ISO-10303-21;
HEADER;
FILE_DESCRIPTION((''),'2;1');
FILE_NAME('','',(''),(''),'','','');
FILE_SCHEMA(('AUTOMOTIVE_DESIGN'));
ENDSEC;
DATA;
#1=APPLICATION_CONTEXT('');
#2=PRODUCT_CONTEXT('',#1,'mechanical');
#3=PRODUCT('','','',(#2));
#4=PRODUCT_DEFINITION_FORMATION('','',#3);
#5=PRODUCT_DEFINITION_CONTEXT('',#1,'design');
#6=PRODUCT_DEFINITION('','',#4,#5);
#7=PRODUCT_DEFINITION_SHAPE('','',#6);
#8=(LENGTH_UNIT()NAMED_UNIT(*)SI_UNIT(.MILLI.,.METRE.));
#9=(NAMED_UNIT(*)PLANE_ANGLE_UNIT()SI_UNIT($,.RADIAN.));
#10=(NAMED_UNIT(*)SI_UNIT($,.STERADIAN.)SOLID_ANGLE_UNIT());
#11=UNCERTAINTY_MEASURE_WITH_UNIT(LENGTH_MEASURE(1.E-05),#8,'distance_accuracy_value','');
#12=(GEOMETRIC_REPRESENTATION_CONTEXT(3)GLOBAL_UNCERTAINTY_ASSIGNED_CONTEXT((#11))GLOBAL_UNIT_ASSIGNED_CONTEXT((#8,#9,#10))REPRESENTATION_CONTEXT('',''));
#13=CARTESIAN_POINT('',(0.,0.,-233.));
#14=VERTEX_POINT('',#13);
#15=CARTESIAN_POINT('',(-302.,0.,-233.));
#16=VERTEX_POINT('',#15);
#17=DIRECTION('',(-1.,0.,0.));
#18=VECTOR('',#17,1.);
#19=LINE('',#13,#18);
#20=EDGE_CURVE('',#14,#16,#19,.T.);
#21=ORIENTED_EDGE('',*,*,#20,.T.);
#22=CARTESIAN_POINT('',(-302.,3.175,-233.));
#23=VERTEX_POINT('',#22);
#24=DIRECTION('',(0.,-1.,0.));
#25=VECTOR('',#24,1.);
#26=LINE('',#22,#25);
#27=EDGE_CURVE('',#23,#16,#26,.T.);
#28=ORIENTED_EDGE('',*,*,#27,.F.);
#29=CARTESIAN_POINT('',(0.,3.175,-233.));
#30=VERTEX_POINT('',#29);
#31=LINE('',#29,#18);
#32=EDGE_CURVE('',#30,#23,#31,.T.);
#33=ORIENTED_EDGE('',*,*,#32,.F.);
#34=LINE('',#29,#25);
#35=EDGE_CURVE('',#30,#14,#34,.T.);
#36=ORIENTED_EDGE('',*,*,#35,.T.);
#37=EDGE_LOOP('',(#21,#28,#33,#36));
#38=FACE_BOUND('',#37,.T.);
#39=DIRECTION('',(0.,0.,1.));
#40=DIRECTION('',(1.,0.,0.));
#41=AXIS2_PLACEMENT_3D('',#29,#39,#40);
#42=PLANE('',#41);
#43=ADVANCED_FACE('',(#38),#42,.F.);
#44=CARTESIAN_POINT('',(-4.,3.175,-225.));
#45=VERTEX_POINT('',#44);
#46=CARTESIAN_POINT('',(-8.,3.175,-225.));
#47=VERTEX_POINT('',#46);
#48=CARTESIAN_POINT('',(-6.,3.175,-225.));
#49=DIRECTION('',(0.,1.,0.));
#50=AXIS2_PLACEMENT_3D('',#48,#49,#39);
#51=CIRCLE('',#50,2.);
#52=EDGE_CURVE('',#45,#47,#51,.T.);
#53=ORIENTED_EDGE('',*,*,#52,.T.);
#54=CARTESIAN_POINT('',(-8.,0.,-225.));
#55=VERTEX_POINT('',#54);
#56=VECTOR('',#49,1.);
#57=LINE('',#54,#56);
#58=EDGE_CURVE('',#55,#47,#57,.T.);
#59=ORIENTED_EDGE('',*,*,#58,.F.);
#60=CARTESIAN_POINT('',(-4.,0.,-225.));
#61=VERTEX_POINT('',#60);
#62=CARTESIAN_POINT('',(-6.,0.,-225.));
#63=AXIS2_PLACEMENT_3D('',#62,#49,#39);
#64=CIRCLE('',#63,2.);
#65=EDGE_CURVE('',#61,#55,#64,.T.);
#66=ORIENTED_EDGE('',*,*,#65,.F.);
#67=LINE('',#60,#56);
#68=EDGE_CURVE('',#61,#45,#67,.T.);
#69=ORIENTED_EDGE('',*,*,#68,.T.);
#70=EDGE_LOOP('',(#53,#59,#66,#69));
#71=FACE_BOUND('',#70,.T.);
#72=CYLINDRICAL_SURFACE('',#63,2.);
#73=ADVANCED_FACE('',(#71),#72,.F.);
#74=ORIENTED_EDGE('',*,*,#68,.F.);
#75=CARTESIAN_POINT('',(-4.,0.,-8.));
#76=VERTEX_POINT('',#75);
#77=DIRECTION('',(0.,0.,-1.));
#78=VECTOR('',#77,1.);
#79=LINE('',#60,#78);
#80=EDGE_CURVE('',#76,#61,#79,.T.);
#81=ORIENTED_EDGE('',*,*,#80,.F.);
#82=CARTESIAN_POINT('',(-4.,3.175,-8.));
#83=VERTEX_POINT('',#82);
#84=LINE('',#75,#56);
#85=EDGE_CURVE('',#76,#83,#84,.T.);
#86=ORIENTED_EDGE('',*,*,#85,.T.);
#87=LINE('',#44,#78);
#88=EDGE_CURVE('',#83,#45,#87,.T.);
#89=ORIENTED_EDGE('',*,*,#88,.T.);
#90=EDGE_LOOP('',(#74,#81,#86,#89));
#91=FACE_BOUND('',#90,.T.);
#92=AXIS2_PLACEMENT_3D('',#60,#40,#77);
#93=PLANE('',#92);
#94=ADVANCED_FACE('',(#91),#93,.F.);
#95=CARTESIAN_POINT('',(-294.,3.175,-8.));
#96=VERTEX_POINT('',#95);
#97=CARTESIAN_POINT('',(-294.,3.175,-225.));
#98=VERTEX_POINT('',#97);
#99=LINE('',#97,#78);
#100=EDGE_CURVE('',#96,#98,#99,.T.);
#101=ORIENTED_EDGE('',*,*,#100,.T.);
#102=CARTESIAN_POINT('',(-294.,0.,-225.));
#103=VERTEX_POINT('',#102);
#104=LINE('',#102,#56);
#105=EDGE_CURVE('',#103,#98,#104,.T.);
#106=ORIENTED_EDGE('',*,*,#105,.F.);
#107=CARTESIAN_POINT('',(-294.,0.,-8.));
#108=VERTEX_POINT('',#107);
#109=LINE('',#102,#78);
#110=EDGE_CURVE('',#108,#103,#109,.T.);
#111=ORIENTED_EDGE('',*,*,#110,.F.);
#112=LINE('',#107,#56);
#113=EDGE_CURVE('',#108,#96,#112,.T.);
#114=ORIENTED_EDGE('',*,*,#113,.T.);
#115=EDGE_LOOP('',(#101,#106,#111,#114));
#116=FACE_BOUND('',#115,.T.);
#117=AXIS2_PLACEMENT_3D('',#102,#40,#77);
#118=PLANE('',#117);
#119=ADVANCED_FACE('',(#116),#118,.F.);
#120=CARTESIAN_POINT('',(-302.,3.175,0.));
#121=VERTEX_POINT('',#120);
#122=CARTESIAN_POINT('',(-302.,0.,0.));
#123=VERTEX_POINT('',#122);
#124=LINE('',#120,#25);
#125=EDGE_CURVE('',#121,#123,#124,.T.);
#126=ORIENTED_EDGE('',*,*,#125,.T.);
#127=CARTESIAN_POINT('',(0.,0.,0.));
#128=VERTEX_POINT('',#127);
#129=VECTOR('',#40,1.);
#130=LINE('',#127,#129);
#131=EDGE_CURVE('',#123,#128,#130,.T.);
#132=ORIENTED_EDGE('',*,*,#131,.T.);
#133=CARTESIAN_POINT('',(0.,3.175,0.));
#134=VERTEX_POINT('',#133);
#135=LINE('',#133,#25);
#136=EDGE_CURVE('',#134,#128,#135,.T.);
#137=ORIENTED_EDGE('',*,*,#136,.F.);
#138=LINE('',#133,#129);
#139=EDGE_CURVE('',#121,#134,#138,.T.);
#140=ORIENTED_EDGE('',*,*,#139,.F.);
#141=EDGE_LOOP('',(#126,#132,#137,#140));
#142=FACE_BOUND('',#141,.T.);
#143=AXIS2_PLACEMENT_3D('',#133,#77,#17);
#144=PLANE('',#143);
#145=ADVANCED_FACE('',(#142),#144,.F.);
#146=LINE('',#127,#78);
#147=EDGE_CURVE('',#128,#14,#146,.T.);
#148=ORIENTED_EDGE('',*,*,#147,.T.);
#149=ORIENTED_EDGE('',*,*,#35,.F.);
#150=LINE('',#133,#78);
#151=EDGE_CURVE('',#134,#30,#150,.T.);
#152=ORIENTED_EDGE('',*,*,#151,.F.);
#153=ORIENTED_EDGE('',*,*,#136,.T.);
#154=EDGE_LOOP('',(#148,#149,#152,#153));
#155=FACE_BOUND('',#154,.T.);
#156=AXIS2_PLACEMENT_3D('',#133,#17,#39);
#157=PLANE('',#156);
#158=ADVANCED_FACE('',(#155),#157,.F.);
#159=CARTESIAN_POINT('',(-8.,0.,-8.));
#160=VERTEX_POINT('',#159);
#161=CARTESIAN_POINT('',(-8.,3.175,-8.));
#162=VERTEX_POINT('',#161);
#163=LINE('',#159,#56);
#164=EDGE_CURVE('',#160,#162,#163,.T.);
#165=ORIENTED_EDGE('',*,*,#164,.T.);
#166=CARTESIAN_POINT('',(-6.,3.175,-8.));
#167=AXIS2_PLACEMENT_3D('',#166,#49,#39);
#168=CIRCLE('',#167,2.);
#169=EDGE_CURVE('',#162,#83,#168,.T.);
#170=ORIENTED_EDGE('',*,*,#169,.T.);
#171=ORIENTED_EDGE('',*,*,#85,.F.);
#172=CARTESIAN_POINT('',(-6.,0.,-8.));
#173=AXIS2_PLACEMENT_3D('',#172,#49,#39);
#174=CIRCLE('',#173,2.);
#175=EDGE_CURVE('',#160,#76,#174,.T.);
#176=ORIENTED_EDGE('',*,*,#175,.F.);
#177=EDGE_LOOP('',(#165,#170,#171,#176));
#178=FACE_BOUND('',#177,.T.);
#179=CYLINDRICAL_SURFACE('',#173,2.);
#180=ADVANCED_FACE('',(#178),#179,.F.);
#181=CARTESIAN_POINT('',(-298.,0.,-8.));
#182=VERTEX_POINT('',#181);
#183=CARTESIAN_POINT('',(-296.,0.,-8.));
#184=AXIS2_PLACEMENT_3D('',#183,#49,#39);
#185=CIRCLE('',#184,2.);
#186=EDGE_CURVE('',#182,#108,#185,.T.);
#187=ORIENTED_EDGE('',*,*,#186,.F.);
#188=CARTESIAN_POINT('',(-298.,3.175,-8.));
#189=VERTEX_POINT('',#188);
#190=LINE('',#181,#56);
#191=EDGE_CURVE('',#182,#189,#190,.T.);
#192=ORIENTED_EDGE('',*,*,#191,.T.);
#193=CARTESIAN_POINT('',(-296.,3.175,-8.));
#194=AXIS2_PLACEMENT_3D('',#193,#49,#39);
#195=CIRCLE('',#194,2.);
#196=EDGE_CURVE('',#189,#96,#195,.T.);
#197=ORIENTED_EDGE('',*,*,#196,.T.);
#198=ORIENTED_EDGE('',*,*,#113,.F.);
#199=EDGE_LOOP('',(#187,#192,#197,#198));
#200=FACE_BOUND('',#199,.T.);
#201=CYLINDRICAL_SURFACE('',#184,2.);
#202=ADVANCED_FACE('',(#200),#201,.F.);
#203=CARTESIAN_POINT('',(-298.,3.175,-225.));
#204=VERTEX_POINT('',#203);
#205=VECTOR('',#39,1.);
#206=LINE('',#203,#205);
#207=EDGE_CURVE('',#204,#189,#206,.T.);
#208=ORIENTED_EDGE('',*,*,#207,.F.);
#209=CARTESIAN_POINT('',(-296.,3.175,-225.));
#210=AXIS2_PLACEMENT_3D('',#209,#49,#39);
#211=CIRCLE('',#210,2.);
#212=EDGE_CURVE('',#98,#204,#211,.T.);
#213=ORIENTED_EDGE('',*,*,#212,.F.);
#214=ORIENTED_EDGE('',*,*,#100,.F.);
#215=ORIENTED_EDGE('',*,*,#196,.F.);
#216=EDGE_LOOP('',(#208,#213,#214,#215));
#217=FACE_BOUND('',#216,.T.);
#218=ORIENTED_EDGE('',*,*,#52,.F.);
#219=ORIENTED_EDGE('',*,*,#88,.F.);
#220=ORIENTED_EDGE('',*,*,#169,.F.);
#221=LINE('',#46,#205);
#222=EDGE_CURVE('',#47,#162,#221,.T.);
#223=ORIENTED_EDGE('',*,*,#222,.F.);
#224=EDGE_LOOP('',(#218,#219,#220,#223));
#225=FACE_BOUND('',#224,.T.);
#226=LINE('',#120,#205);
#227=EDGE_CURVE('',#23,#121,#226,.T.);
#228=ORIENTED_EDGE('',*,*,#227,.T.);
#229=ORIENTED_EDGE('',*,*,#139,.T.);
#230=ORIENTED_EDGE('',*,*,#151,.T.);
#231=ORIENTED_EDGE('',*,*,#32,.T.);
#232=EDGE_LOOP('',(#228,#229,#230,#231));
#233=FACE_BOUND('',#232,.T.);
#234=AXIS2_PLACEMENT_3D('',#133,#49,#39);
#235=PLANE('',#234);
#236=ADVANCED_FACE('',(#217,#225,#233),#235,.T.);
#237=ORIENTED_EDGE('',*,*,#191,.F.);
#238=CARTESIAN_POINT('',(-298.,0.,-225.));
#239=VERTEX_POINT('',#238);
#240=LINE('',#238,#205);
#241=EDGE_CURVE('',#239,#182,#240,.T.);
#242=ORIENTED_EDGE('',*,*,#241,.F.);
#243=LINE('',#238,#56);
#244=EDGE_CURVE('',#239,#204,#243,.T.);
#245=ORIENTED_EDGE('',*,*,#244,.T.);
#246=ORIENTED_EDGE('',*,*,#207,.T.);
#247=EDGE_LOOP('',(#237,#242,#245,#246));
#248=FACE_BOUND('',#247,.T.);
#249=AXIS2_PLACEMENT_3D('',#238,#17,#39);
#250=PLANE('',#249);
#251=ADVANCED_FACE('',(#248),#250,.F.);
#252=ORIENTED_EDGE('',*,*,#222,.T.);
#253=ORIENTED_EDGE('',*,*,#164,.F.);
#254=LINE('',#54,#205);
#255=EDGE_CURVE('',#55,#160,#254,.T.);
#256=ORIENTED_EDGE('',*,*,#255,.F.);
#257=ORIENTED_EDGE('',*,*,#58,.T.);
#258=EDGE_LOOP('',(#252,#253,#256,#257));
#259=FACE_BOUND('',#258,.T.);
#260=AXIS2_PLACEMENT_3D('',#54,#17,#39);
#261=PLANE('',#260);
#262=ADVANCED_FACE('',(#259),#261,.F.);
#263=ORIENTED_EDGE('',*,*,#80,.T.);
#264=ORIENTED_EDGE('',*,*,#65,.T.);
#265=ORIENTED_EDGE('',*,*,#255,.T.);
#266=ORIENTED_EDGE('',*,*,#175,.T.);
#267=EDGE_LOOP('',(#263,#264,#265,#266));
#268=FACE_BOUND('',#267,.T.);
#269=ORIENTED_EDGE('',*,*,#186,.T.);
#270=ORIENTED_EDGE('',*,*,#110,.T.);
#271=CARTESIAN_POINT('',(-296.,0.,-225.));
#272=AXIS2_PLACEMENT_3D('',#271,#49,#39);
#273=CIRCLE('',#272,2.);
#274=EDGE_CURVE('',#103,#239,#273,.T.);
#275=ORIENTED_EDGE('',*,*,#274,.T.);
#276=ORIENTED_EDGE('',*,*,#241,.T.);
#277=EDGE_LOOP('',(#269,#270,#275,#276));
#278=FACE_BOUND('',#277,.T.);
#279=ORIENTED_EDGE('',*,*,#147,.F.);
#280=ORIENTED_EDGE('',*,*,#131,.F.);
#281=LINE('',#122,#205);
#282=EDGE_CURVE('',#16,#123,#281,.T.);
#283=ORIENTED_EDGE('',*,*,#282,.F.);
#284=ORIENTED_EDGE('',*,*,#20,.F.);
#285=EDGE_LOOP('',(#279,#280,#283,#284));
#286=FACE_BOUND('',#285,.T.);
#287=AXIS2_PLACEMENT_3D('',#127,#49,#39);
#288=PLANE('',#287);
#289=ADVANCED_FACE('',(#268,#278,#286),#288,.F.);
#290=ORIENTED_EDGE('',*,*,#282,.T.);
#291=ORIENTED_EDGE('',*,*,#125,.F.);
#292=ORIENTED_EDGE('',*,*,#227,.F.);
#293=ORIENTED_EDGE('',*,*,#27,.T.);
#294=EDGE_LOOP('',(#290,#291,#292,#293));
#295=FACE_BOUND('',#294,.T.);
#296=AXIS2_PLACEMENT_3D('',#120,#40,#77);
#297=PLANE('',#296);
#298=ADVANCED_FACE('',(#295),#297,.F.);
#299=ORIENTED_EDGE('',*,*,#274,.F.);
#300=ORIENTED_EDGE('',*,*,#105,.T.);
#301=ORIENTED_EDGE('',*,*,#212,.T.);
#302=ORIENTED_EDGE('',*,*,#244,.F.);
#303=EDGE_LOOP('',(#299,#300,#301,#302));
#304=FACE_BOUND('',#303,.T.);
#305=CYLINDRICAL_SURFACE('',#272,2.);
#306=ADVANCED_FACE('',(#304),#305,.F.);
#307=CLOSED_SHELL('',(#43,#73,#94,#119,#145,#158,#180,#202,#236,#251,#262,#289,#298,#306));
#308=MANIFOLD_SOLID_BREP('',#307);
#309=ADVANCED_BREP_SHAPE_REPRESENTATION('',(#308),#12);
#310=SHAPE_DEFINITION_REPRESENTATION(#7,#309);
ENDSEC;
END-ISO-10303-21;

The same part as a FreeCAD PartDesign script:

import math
import FreeCAD as App
import Part
import Sketcher
from FreeCAD import Vector

doc = App.newDocument("Part")
params = doc.addObject("Spreadsheet::Sheet", "Params")
for row, (alias, value) in enumerate([
    ("sketch1_width", "302 mm"),
    ("sketch1_height", "233 mm"),
    ("pad1_length", "3.175 mm"),
    ("sketch2_radius", "2 mm"),
    ("sketch2_height", "217 mm"),
], start=1):
    params.set(f"A{row}", alias)
    params.set(f"B{row}", "=" + value)
    params.setAlias(f"B{row}", alias)

body = doc.addObject("PartDesign::Body", "Body")

# Sketch on XZ plane
sketch1 = body.newObject("Sketcher::SketchObject", "Sketch")
sketch1.AttachmentSupport = (doc.getObject("XZ_Plane"), [""])
sketch1.MapMode = "FlatFace"
sketch1.addGeometry(Part.LineSegment(Vector(-302, -233, 0), Vector(-302, 0, 0)), False)
sketch1.addGeometry(Part.LineSegment(Vector(-302, 0, 0), Vector(0, 0, 0)), False)
sketch1.addGeometry(Part.LineSegment(Vector(0, 0, 0), Vector(0, -233, 0)), False)
sketch1.addGeometry(Part.LineSegment(Vector(0, -233, 0), Vector(-302, -233, 0)), False)
sketch1.addConstraint(Sketcher.Constraint("Coincident", 0, 2, 1, 1))
sketch1.addConstraint(Sketcher.Constraint("Coincident", 1, 2, 2, 1))
sketch1.addConstraint(Sketcher.Constraint("Coincident", 2, 2, 3, 1))
sketch1.addConstraint(Sketcher.Constraint("Coincident", 3, 2, 0, 1))
sketch1.addConstraint(Sketcher.Constraint("Vertical", 0))
sketch1.addConstraint(Sketcher.Constraint("Horizontal", 1))
sketch1.addConstraint(Sketcher.Constraint("Vertical", 2))
sketch1.addConstraint(Sketcher.Constraint("Horizontal", 3))
sketch1.addConstraint(Sketcher.Constraint("Coincident", 1, 2, -1, 1))
sketch1.addConstraint(Sketcher.Constraint("DistanceX", 1, 1, 1, 2, 302.0))
sketch1.addConstraint(Sketcher.Constraint("DistanceY", 0, 1, 0, 2, 233.0))
sketch1.setExpression("Constraints[9]", "Params.sketch1_width")
sketch1.setExpression("Constraints[10]", "Params.sketch1_height")
pad1 = body.newObject("PartDesign::Pad", "Pad")
pad1.Profile = sketch1
pad1.setExpression("Length", "Params.pad1_length")
pad1.Reversed = True

# Sketch on XZ plane
sketch2 = body.newObject("Sketcher::SketchObject", "Sketch001")
sketch2.AttachmentSupport = (doc.getObject("XZ_Plane"), [""])
sketch2.MapMode = "FlatFace"
sketch2.AttachmentOffset = App.Placement(Vector(0, 0, -3.175), App.Rotation())
sketch2.addGeometry(Part.LineSegment(Vector(-294, -8, 0), Vector(-294, -225, 0)), False)
sketch2.addGeometry(Part.ArcOfCircle(Part.Circle(Vector(-296, -225, 0), Vector(0, 0, 1), 2), math.radians(180), math.radians(360)), False)
sketch2.addGeometry(Part.LineSegment(Vector(-298, -225, 0), Vector(-298, -8, 0)), False)
sketch2.addGeometry(Part.ArcOfCircle(Part.Circle(Vector(-296, -8, 0), Vector(0, 0, 1), 2), math.radians(0), math.radians(180)), False)
sketch2.addGeometry(Part.LineSegment(Vector(-4, -8, 0), Vector(-4, -225, 0)), False)
sketch2.addGeometry(Part.ArcOfCircle(Part.Circle(Vector(-6, -225, 0), Vector(0, 0, 1), 2), math.radians(180), math.radians(360)), False)
sketch2.addGeometry(Part.LineSegment(Vector(-8, -225, 0), Vector(-8, -8, 0)), False)
sketch2.addGeometry(Part.ArcOfCircle(Part.Circle(Vector(-6, -8, 0), Vector(0, 0, 1), 2), math.radians(0), math.radians(180)), False)
sketch2.addConstraint(Sketcher.Constraint("Tangent", 0, 2, 1, 2))
sketch2.addConstraint(Sketcher.Constraint("Tangent", 1, 1, 2, 1))
sketch2.addConstraint(Sketcher.Constraint("Tangent", 2, 2, 3, 2))
sketch2.addConstraint(Sketcher.Constraint("Tangent", 3, 1, 0, 1))
sketch2.addConstraint(Sketcher.Constraint("Tangent", 4, 2, 5, 2))
sketch2.addConstraint(Sketcher.Constraint("Tangent", 5, 1, 6, 1))
sketch2.addConstraint(Sketcher.Constraint("Tangent", 6, 2, 7, 2))
sketch2.addConstraint(Sketcher.Constraint("Tangent", 7, 1, 4, 1))
sketch2.addConstraint(Sketcher.Constraint("Vertical", 0))
sketch2.addConstraint(Sketcher.Constraint("Vertical", 2))
sketch2.addConstraint(Sketcher.Constraint("Vertical", 4))
sketch2.addConstraint(Sketcher.Constraint("Vertical", 6))
sketch2.addConstraint(Sketcher.Constraint("Equal", 3, 5))
sketch2.addConstraint(Sketcher.Constraint("Horizontal", 1, 3, 5, 3))
sketch2.addConstraint(Sketcher.Constraint("Horizontal", 3, 3, 7, 3))
sketch2.addConstraint(Sketcher.Constraint("Radius", 1, 2.0))
sketch2.addConstraint(Sketcher.Constraint("DistanceY", 0, 2, 0, 1, 217.0))
sketch2.addConstraint(Sketcher.Constraint("DistanceX", 1, 3, -1, 1, 296.0))
sketch2.addConstraint(Sketcher.Constraint("DistanceY", 1, 3, -1, 1, 225.0))
sketch2.addConstraint(Sketcher.Constraint("DistanceX", 5, 3, -1, 1, 6.0))
sketch2.setExpression("Constraints[15]", "Params.sketch2_radius")
sketch2.setExpression("Constraints[16]", "Params.sketch2_height")
pocket1 = body.newObject("PartDesign::Pocket", "Pocket")
pocket1.Profile = sketch2
pocket1.Type = "ThroughAll"
pocket1.Reversed = True

doc.recompute()
